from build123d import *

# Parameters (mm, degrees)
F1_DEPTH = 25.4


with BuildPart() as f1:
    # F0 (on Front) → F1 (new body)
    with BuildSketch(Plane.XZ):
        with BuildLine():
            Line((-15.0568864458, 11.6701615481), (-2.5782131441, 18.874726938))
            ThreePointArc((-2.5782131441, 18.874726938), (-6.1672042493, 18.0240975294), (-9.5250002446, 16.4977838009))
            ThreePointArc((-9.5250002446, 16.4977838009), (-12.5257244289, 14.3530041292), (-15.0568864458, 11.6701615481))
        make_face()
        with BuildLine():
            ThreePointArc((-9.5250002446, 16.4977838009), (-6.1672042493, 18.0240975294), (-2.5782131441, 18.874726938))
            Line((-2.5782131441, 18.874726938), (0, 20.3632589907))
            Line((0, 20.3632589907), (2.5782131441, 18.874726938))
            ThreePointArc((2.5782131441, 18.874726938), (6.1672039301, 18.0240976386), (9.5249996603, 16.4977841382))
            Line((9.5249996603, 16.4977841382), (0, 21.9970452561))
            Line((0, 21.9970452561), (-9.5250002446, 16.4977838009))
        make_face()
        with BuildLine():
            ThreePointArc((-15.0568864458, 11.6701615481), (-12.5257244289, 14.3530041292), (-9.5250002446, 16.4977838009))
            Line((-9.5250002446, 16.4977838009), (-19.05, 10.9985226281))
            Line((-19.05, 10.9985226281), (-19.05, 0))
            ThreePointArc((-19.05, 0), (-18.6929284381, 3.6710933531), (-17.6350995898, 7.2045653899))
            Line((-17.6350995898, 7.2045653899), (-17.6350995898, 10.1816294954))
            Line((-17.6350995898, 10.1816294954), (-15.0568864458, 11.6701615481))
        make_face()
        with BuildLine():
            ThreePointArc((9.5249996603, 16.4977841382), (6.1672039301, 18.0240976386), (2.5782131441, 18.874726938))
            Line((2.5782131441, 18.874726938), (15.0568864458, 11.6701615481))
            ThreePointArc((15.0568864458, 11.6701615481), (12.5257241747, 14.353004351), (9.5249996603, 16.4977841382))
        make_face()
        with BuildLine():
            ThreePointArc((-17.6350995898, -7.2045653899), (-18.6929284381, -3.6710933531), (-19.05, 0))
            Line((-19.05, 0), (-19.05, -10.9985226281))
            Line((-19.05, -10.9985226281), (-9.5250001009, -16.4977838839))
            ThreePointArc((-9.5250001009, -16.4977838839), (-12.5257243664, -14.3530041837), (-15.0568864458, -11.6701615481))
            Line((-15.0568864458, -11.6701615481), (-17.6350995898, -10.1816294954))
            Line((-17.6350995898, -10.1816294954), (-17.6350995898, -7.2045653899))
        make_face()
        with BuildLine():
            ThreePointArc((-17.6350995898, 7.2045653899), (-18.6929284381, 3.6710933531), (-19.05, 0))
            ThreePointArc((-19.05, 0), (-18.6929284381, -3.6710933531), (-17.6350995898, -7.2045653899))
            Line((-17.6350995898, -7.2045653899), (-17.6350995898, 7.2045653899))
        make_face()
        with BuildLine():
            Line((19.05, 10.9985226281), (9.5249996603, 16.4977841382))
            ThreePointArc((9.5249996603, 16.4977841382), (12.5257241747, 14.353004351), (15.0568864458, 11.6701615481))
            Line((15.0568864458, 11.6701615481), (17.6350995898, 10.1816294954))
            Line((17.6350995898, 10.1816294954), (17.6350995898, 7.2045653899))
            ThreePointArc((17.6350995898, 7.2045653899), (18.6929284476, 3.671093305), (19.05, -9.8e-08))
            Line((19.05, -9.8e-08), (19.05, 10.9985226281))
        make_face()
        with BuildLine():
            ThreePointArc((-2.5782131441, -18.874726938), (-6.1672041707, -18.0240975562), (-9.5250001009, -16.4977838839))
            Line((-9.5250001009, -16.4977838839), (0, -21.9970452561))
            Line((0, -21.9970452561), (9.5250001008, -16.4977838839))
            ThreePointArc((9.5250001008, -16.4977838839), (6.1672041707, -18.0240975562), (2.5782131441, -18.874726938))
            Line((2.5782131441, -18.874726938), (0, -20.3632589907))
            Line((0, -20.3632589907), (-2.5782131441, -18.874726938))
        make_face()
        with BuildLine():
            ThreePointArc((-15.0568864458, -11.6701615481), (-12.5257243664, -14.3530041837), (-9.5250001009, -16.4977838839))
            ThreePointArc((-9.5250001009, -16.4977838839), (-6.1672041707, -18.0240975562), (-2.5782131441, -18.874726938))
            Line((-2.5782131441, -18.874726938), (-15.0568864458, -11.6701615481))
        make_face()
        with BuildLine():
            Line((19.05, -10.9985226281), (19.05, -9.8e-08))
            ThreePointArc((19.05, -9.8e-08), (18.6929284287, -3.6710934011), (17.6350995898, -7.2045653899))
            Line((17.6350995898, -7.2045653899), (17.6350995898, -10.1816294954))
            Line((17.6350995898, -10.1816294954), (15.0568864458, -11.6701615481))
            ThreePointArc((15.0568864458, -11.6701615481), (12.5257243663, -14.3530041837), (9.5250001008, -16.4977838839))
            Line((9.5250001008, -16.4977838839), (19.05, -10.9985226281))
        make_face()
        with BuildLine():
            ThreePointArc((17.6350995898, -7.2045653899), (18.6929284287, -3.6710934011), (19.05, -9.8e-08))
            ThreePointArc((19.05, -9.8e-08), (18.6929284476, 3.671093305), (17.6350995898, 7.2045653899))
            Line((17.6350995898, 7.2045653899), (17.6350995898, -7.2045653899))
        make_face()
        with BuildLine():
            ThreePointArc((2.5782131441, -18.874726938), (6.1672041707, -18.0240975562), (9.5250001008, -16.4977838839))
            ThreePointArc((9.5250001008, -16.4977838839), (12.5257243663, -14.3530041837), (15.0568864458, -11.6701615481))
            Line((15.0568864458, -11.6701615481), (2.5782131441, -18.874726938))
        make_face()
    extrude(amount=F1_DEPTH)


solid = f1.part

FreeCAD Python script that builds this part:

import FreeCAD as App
import Part
import Sketcher
from FreeCAD import Vector
Q = App.Units.Quantity


def add_polygon(sketch, points):
    """Adds a closed chain of lines whose ends are joined by coincident constraints."""
    first, n = sketch.GeometryCount, len(points)
    for a, b in zip(points, points[1:] + points[:1]):
        sketch.addGeometry(Part.LineSegment(App.Vector(*a, 0), App.Vector(*b, 0)), False)
    for i in range(n):
        sketch.addConstraint(Sketcher.Constraint("Coincident", first + i, 2, first + (i + 1) % n, 1))

doc = App.newDocument("Part")
body = doc.addObject("PartDesign::Body", "Body")

sketch1 = body.newObject("Sketcher::SketchObject", "Sketch")
sketch1.AttachmentSupport = (doc.getObject("XZ_Plane"), [""])
sketch1.MapMode = "FlatFace"
add_polygon(sketch1, [(0, -21.997045), (19.05, -10.998523), (19.05, 10.998523), (9.525, 16.497784), (0, 21.997045), (-9.525, 16.497784), (-19.05, 10.998523), (-19.05, -10.998523), (-9.525, -16.497784)])
add_polygon(sketch1, [(17.6351, -10.181629), (15.056886, -11.670162), (2.578213, -18.874727), (0, -20.363259), (-2.578213, -18.874727), (-15.056886, -11.670162), (-17.6351, -10.181629), (-17.6351, 10.181629), (-15.056886, 11.670162), (-2.578213, 18.874727), (0, 20.363259), (2.578213, 18.874727), (15.056886, 11.670162), (17.6351, 10.181629)])
sketch1.addConstraint(Sketcher.Constraint("Vertical", 1))
sketch1.addConstraint(Sketcher.Constraint("Vertical", 6))
sketch1.addConstraint(Sketcher.Constraint("Vertical", 15))
sketch1.addConstraint(Sketcher.Constraint("Vertical", 22))
sketch1.addConstraint(Sketcher.Constraint("Symmetric", 0, 2, 5, 2, -1, 1))
sketch1.addConstraint(Sketcher.Constraint("Symmetric", 2, 2, 7, 2, -1, 1))
sketch1.addConstraint(Sketcher.Constraint("Symmetric", 3, 2, 8, 2, -1, 1))
sketch1.addConstraint(Sketcher.Constraint("Symmetric", 9, 2, 16, 2, -1, 1))
sketch1.addConstraint(Sketcher.Constraint("Symmetric", 10, 2, 17, 2, -1, 1))
sketch1.addConstraint(Sketcher.Constraint("Symmetric", 11, 2, 18, 2, -1, 1))
sketch1.addConstraint(Sketcher.Constraint("Symmetric", 12, 2, 19, 2, -1, 1))
sketch1.addConstraint(Sketcher.Constraint("Symmetric", 13, 2, 20, 2, -1, 1))
sketch1.addConstraint(Sketcher.Constraint("Symmetric", 14, 2, 21, 2, -1, 1))
sketch1.addConstraint(Sketcher.Constraint("Symmetric", 2, 2, 4, 2, -2))
sketch1.addConstraint(Sketcher.Constraint("Symmetric", 10, 2, 12, 2, -2))
sketch1.addConstraint(Sketcher.Constraint("Symmetric", 9, 2, 13, 2, -2))
sketch1.addConstraint(Sketcher.Constraint("PointOnObject", 3, 2, -2))
sketch1.addConstraint(Sketcher.Constraint("PointOnObject", 11, 2, -2))
sketch1.addConstraint(Sketcher.Constraint("Parallel", 2, 3))
sketch1.addConstraint(Sketcher.Constraint("Parallel", 0, 4))
sketch1.addConstraint(Sketcher.Constraint("Parallel", 3, 7))
sketch1.addConstraint(Sketcher.Constraint("Parallel", 5, 9))
sketch1.addConstraint(Sketcher.Constraint("Parallel", 9, 10))
sketch1.addConstraint(Sketcher.Constraint("Parallel", 10, 11))
sketch1.addConstraint(Sketcher.Constraint("Parallel", 13, 14))
sketch1.addConstraint(Sketcher.Constraint("Parallel", 11, 16))
sketch1.addConstraint(Sketcher.Constraint("Equal", 2, 3))
sketch1.addConstraint(Sketcher.Constraint("Equal", 9, 11))
sketch1.addConstraint(Sketcher.Constraint("Angle", 0, Q("30 deg")))
sketch1.addConstraint(Sketcher.Constraint("DistanceX", 5, 2, 1, 2, Q("1.5 in")))
sketch1.addConstraint(Sketcher.Constraint("DistanceY", 15, 1, 15, 2, Q("20.363259 mm")))
sketch1.addConstraint(Sketcher.Constraint("DistanceX", 14, 2, -1, 1, Q("17.6351 mm")))
sketch1.addConstraint(Sketcher.Constraint("Distance", 10, Q("14.409131 mm")))
sketch1.addConstraint(Sketcher.Constraint("DistanceY", 1, 1, 1, 2, Q("21.997045 mm")))
pad1 = body.newObject("PartDesign::Pad", "Pad")
pad1.Profile = sketch1
pad1.Length = Q("1 in")

doc.recompute()
